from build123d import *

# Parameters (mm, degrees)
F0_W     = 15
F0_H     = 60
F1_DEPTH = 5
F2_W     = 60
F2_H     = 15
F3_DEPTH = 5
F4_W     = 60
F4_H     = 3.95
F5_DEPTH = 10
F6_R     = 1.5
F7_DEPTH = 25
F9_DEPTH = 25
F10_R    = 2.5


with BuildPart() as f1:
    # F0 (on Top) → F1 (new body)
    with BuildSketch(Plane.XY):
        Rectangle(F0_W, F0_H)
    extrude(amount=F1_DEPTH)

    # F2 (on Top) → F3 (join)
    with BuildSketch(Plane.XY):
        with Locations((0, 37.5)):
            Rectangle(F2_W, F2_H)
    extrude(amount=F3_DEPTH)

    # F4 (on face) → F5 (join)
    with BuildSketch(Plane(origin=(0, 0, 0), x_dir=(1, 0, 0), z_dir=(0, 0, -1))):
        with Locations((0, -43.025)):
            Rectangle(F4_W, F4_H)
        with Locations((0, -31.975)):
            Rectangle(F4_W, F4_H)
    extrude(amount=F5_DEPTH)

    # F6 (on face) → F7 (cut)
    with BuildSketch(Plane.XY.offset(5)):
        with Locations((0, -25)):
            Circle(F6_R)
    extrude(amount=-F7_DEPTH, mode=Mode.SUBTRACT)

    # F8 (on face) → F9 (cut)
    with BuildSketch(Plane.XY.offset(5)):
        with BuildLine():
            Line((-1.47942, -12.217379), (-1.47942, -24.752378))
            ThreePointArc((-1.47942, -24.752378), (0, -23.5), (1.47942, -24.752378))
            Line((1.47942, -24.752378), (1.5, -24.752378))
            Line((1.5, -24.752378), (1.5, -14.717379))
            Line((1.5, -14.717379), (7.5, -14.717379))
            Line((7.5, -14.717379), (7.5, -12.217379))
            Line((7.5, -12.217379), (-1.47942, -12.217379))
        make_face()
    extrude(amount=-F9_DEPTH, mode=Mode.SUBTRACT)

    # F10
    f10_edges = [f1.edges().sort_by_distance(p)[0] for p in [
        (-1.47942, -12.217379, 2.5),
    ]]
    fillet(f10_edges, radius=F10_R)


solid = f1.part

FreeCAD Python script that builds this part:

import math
import FreeCAD as App
import Part
import Sketcher
Q = App.Units.Quantity


def edges_at(feature, points):
    """Names of the edges that pass closest to the given points."""
    edges = feature.Shape.Edges
    near = lambda p: min(range(len(edges)), key=lambda i: edges[i].distToShape(Part.Vertex(*p))[0])
    return sorted({f"Edge{near(p) + 1}" for p in points})

doc = App.newDocument("Part")
body = doc.addObject("PartDesign::Body", "Body")

sketch1 = doc.addObject("Sketcher::SketchObject", "Sketch")
body.addObject(sketch1)
sketch1.AttachmentSupport = (doc.XY_Plane, [""])
sketch1.MapMode = "FlatFace"
sketch1.addGeometry([
    Part.LineSegment(App.Vector(-7.5, 30, 0), App.Vector(-7.5, -30, 0)),
    Part.LineSegment(App.Vector(-7.5, -30, 0), App.Vector(7.5, -30, 0)),
    Part.LineSegment(App.Vector(7.5, -30, 0), App.Vector(7.5, 30, 0)),
    Part.LineSegment(App.Vector(7.5, 30, 0), App.Vector(-7.5, 30, 0)),
], False)
sketch1.addConstraint([
    Sketcher.Constraint("Coincident", 0, 2, 1, 1),
    Sketcher.Constraint("Coincident", 1, 2, 2, 1),
    Sketcher.Constraint("Coincident", 2, 2, 3, 1),
    Sketcher.Constraint("Coincident", 3, 2, 0, 1),
    Sketcher.Constraint("Vertical", 0),
    Sketcher.Constraint("Horizontal", 1),
    Sketcher.Constraint("Vertical", 2),
    Sketcher.Constraint("Horizontal", 3),
    Sketcher.Constraint("Symmetric", 0, 2, 2, 2, -1, 1),
    Sketcher.Constraint("DistanceX", 1, 1, 1, 2, Q("15 mm")),
    Sketcher.Constraint("DistanceY", 0, 2, 0, 1, Q("60 mm")),
])
pad1 = doc.addObject("PartDesign::Pad", "Pad")
body.addObject(pad1)
pad1.Profile = sketch1
pad1.Length = 5

sketch2 = doc.addObject("Sketcher::SketchObject", "Sketch001")
body.addObject(sketch2)
sketch2.AttachmentSupport = (doc.XY_Plane, [""])
sketch2.MapMode = "FlatFace"
sketch2.addGeometry([
    Part.LineSegment(App.Vector(-30, 45, 0), App.Vector(-30, 30, 0)),
    Part.LineSegment(App.Vector(-30, 30, 0), App.Vector(30, 30, 0)),
    Part.LineSegment(App.Vector(30, 30, 0), App.Vector(30, 45, 0)),
    Part.LineSegment(App.Vector(30, 45, 0), App.Vector(-30, 45, 0)),
], False)
sketch2.addConstraint([
    Sketcher.Constraint("Coincident", 0, 2, 1, 1),
    Sketcher.Constraint("Coincident", 1, 2, 2, 1),
    Sketcher.Constraint("Coincident", 2, 2, 3, 1),
    Sketcher.Constraint("Coincident", 3, 2, 0, 1),
    Sketcher.Constraint("Vertical", 0),
    Sketcher.Constraint("Horizontal", 1),
    Sketcher.Constraint("Vertical", 2),
    Sketcher.Constraint("Horizontal", 3),
    Sketcher.Constraint("DistanceX", 1, 1, 1, 2, Q("60 mm")),
    Sketcher.Constraint("DistanceY", 0, 2, 0, 1, Q("15 mm")),
    Sketcher.Constraint("DistanceX", 0, 2, -1, 1, Q("30 mm")),
    Sketcher.Constraint("DistanceY", -1, 1, 0, 2, Q("30 mm")),
])
pad2 = doc.addObject("PartDesign::Pad", "Pad001")
body.addObject(pad2)
pad2.Profile = sketch2
pad2.Length = 5

sketch3 = doc.addObject("Sketcher::SketchObject", "Sketch002")
body.addObject(sketch3)
sketch3.AttachmentSupport = (doc.XY_Plane, [""])
sketch3.MapMode = "FlatFace"
sketch3.addGeometry([
    Part.LineSegment(App.Vector(-30, 41.05, 0), App.Vector(-30, 45, 0)),
    Part.LineSegment(App.Vector(-30, 45, 0), App.Vector(30, 45, 0)),
    Part.LineSegment(App.Vector(30, 45, 0), App.Vector(30, 41.05, 0)),
    Part.LineSegment(App.Vector(30, 41.05, 0), App.Vector(-30, 41.05, 0)),
    Part.LineSegment(App.Vector(-30, 30, 0), App.Vector(-30, 33.95, 0)),
    Part.LineSegment(App.Vector(-30, 33.95, 0), App.Vector(30, 33.95, 0)),
    Part.LineSegment(App.Vector(30, 33.95, 0), App.Vector(30, 30, 0)),
    Part.LineSegment(App.Vector(30, 30, 0), App.Vector(-30, 30, 0)),
], False)
sketch3.addConstraint([
    Sketcher.Constraint("Coincident", 0, 2, 1, 1),
    Sketcher.Constraint("Coincident", 1, 2, 2, 1),
    Sketcher.Constraint("Coincident", 2, 2, 3, 1),
    Sketcher.Constraint("Coincident", 3, 2, 0, 1),
    Sketcher.Constraint("Coincident", 4, 2, 5, 1),
    Sketcher.Constraint("Coincident", 5, 2, 6, 1),
    Sketcher.Constraint("Coincident", 6, 2, 7, 1),
    Sketcher.Constraint("Coincident", 7, 2, 4, 1),
    Sketcher.Constraint("Vertical", 0),
    Sketcher.Constraint("Horizontal", 1),
    Sketcher.Constraint("Vertical", 2),
    Sketcher.Constraint("Horizontal", 3),
    Sketcher.Constraint("Vertical", 4),
    Sketcher.Constraint("Horizontal", 5),
    Sketcher.Constraint("Vertical", 6),
    Sketcher.Constraint("Horizontal", 7),
    Sketcher.Constraint("Vertical", 3, 2, 4, 2),
    Sketcher.Constraint("Vertical", 2, 2, 5, 2),
    Sketcher.Constraint("Equal", 2, 4),
    Sketcher.Constraint("DistanceX", 1, 1, 1, 2, Q("60 mm")),
    Sketcher.Constraint("DistanceX", 0, 2, -1, 1, Q("30 mm")),
    Sketcher.Constraint("DistanceY", -1, 1, 0, 2, Q("45 mm")),
    Sketcher.Constraint("DistanceY", -1, 1, 6, 2, Q("30 mm")),
    Sketcher.Constraint("DistanceY", 0, 1, 0, 2, Q("3.95 mm")),
])
pad3 = doc.addObject("PartDesign::Pad", "Pad002")
body.addObject(pad3)
pad3.Profile = sketch3
pad3.Length = 10
pad3.Reversed = True

sketch4 = doc.addObject("Sketcher::SketchObject", "Sketch003")
body.addObject(sketch4)
sketch4.AttachmentSupport = (doc.XY_Plane, [""])
sketch4.MapMode = "FlatFace"
sketch4.AttachmentOffset = App.Placement(App.Vector(0, 0, 5), App.Rotation())
sketch4.addGeometry(Part.Circle(App.Vector(0, -25, 0), App.Vector(0, 0, 1), 1.5), False)
sketch4.addConstraint([
    Sketcher.Constraint("PointOnObject", 0, 3, -2),
    Sketcher.Constraint("Diameter", 0, Q("3 mm")),
    Sketcher.Constraint("DistanceY", 0, 3, -1, 1, Q("25 mm")),
])
pocket1 = doc.addObject("PartDesign::Pocket", "Pocket")
body.addObject(pocket1)
pocket1.Profile = sketch4
pocket1.Length = 25

sketch5 = doc.addObject("Sketcher::SketchObject", "Sketch004")
body.addObject(sketch5)
sketch5.AttachmentSupport = (doc.XY_Plane, [""])
sketch5.MapMode = "FlatFace"
sketch5.AttachmentOffset = App.Placement(App.Vector(0, 0, 5), App.Rotation())
sketch5.addGeometry([
    Part.LineSegment(App.Vector(-1.47942, -12.217379, 0), App.Vector(-1.47942, -24.752378, 0)),
    Part.ArcOfCircle(Part.Circle(App.Vector(0, -25, 0), App.Vector(0, 0, 1), 1.5), math.radians(9.501962), math.radians(170.498038)),
    Part.LineSegment(App.Vector(1.47942, -24.752378, 0), App.Vector(1.5, -24.752378, 0)),
    Part.LineSegment(App.Vector(1.5, -24.752378, 0), App.Vector(1.5, -14.717379, 0)),
    Part.LineSegment(App.Vector(1.5, -14.717379, 0), App.Vector(7.5, -14.717379, 0)),
    Part.LineSegment(App.Vector(7.5, -14.717379, 0), App.Vector(7.5, -12.217379, 0)),
    Part.LineSegment(App.Vector(7.5, -12.217379, 0), App.Vector(-1.47942, -12.217379, 0)),
], False)
sketch5.addConstraint([
    Sketcher.Constraint("Coincident", 0, 2, 1, 2),
    Sketcher.Constraint("Coincident", 1, 1, 2, 1),
    Sketcher.Constraint("Coincident", 2, 2, 3, 1),
    Sketcher.Constraint("Coincident", 3, 2, 4, 1),
    Sketcher.Constraint("Coincident", 4, 2, 5, 1),
    Sketcher.Constraint("Coincident", 5, 2, 6, 1),
    Sketcher.Constraint("Coincident", 6, 2, 0, 1),
    Sketcher.Constraint("Vertical", 0),
    Sketcher.Constraint("Horizontal", 2),
    Sketcher.Constraint("Vertical", 3),
    Sketcher.Constraint("Horizontal", 4),
    Sketcher.Constraint("Vertical", 5),
    Sketcher.Constraint("Horizontal", 6),
    Sketcher.Constraint("Symmetric", 0, 2, 1, 1, -2),
    Sketcher.Constraint("Radius", 1, Q("1.5 mm")),
    Sketcher.Constraint("DistanceX", 4, 1, 4, 2, Q("6 mm")),
    Sketcher.Constraint("DistanceY", 5, 1, 5, 2, Q("2.5 mm")),
    Sketcher.Constraint("DistanceY", 1, 3, -1, 1, Q("25 mm")),
    Sketcher.Constraint("DistanceX", -1, 1, 2, 2, Q("1.5 mm")),
    Sketcher.Constraint("DistanceY", 0, 2, 0, 1, Q("12.534999 mm")),
    Sketcher.Constraint("DistanceX", 2, 1, 2, 2, Q("0.02058 mm")),
])
pocket2 = doc.addObject("PartDesign::Pocket", "Pocket001")
body.addObject(pocket2)
pocket2.Profile = sketch5
pocket2.Length = 25
doc.recompute()

fillet = doc.addObject("PartDesign::Fillet", "Fillet")
body.addObject(fillet)
fillet.Base = (pocket2, edges_at(pocket2, [(-1.479, -12.217, 2.5)]))
fillet.Radius = 2.5

doc.recompute()
